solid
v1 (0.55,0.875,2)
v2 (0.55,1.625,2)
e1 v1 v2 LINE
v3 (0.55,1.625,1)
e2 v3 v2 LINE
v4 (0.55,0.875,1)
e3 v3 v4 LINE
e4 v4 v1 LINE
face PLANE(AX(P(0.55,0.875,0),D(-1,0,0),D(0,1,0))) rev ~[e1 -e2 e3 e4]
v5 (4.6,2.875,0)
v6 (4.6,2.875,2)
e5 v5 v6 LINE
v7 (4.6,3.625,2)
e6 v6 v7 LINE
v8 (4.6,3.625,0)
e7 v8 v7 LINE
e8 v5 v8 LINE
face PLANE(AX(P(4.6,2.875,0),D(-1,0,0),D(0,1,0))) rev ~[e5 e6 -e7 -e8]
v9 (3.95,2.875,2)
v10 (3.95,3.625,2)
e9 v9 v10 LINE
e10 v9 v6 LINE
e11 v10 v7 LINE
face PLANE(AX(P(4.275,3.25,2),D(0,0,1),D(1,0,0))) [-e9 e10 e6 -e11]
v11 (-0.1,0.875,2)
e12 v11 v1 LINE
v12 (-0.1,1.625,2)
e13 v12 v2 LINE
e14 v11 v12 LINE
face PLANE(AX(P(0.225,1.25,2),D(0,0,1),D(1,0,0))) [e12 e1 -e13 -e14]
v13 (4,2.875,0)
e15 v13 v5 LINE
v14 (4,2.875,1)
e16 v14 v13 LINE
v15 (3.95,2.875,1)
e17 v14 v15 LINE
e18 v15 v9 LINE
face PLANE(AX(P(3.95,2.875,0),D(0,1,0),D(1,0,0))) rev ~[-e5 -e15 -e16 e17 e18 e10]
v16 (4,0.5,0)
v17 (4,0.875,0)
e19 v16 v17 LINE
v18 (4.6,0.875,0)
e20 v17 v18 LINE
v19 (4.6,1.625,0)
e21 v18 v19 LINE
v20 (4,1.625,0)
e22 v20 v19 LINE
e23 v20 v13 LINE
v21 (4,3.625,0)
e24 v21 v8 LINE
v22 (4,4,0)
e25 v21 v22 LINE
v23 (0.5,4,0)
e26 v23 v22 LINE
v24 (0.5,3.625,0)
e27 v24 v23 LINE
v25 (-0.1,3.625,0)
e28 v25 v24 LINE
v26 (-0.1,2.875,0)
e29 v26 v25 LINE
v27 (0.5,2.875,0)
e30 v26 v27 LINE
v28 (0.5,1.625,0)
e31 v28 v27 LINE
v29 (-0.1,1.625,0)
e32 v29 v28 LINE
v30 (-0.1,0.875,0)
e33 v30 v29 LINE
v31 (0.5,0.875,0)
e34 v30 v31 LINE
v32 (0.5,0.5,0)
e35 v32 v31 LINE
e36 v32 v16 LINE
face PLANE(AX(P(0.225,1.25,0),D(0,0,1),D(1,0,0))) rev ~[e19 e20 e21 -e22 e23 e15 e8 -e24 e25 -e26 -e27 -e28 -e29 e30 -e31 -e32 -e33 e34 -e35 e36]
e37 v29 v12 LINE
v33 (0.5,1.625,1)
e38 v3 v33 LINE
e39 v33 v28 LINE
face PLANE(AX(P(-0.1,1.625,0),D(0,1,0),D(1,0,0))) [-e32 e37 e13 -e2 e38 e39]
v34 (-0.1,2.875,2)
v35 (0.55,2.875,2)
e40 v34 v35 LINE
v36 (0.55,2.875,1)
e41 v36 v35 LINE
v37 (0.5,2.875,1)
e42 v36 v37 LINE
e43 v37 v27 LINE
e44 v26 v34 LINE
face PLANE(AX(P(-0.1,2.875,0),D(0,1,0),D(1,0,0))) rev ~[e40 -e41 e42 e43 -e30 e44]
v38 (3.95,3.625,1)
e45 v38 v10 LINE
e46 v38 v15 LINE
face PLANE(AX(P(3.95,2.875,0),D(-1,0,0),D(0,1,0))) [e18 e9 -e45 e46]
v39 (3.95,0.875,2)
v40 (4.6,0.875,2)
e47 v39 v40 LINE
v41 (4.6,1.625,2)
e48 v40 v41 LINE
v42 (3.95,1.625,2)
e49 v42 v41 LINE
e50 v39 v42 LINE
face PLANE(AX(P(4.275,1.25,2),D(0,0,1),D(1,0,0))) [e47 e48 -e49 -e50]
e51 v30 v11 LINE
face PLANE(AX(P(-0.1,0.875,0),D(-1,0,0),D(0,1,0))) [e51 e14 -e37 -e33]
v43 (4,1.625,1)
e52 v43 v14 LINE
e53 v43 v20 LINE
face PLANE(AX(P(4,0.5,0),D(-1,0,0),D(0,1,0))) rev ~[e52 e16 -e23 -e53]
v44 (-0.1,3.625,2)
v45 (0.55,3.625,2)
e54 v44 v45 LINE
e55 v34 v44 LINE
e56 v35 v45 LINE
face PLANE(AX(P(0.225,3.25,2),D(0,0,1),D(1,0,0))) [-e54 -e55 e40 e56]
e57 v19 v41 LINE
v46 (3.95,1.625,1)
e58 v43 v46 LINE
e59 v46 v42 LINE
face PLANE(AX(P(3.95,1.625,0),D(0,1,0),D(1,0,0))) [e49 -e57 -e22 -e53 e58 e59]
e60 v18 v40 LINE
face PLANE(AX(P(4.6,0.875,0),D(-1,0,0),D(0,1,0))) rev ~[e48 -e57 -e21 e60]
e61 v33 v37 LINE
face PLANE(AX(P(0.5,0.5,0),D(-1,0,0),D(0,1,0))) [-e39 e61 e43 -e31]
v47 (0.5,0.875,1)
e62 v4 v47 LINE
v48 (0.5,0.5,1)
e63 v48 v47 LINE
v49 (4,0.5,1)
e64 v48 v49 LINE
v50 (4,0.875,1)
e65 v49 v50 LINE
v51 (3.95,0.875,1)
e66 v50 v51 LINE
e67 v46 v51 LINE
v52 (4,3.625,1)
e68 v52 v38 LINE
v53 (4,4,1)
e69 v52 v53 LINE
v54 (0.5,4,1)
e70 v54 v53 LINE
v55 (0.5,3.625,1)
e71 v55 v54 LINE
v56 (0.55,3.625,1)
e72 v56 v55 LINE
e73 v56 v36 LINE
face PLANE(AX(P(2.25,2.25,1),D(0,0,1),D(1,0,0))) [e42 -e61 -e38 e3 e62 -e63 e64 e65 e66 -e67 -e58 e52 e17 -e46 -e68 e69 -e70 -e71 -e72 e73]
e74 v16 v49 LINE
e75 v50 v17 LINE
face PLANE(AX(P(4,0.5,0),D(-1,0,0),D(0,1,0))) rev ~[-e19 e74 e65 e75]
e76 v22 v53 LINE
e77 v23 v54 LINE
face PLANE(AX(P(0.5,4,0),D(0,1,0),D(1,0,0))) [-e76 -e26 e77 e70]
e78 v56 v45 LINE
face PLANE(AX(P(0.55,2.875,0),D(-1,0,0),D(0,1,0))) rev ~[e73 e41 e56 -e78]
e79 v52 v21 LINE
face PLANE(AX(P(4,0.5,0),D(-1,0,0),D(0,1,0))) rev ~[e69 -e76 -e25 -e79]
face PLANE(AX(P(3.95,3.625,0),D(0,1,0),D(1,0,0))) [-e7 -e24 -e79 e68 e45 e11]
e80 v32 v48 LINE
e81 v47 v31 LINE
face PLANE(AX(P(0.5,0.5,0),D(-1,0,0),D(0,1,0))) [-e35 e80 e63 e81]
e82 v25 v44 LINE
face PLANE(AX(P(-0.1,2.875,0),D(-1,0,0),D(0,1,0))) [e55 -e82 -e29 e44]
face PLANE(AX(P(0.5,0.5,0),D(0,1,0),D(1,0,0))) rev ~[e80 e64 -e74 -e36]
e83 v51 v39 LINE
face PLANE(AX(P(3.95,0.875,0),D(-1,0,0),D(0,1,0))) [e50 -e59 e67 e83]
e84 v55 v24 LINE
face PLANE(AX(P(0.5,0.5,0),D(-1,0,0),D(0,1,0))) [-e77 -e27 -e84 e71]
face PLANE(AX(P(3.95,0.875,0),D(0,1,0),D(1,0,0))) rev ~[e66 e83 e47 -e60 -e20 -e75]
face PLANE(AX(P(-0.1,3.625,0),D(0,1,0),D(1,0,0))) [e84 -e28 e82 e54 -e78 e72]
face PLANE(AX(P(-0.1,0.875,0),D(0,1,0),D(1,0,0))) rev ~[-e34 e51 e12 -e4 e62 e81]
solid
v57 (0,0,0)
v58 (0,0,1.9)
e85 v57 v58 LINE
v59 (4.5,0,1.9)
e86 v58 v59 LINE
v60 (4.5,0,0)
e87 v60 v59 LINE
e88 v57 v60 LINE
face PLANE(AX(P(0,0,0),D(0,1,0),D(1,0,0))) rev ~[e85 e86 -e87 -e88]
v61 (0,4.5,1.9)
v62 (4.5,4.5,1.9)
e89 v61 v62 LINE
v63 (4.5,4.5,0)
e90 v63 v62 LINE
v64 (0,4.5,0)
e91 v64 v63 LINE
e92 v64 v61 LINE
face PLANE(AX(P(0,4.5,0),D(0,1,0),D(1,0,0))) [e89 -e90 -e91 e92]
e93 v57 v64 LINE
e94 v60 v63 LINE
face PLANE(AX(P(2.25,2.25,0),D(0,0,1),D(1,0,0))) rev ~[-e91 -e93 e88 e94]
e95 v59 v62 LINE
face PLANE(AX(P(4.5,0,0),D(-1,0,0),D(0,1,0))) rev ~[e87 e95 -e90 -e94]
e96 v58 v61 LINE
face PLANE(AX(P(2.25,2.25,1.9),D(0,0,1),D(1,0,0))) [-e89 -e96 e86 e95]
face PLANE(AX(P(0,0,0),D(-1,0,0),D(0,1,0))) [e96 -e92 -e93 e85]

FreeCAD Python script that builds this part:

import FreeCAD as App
import Part
import Sketcher
from FreeCAD import Vector

doc = App.newDocument("Part")
body = doc.addObject("PartDesign::Body", "Body")

sketch1 = body.newObject("Sketcher::SketchObject", "Sketch")
sketch1.AttachmentSupport = (doc.getObject("XY_Plane"), [""])
sketch1.MapMode = "FlatFace"
sketch1.addGeometry([
    Part.LineSegment(Vector(0, 4.5, 0), Vector(0, 0, 0)),
    Part.LineSegment(Vector(0, 0, 0), Vector(4.5, 0, 0)),
    Part.LineSegment(Vector(4.5, 0, 0), Vector(4.5, 4.5, 0)),
    Part.LineSegment(Vector(4.5, 4.5, 0), Vector(0, 4.5, 0)),
], False)
sketch1.addConstraint([
    Sketcher.Constraint("Coincident", 0, 2, 1, 1),
    Sketcher.Constraint("Coincident", 1, 2, 2, 1),
    Sketcher.Constraint("Coincident", 2, 2, 3, 1),
    Sketcher.Constraint("Coincident", 3, 2, 0, 1),
    Sketcher.Constraint("Vertical", 0),
    Sketcher.Constraint("Horizontal", 1),
    Sketcher.Constraint("Vertical", 2),
    Sketcher.Constraint("Horizontal", 3),
    Sketcher.Constraint("Coincident", 0, 2, -1, 1),
    Sketcher.Constraint("Equal", 3, 0),
    Sketcher.Constraint("DistanceX", 1, 1, 1, 2, 4.5),
])
pad1 = body.newObject("PartDesign::Pad", "Pad")
pad1.Profile = sketch1
pad1.Length = 1.9
body2 = doc.addObject("PartDesign::Body", "Body001")

sketch2 = body2.newObject("Sketcher::SketchObject", "Sketch001")
sketch2.AttachmentSupport = (doc.getObject("XY_Plane001"), [""])
sketch2.MapMode = "FlatFace"
sketch2.addGeometry([
    Part.LineSegment(Vector(0.5, 4, 0), Vector(0.5, 0.5, 0)),
    Part.LineSegment(Vector(0.5, 0.5, 0), Vector(4, 0.5, 0)),
    Part.LineSegment(Vector(4, 0.5, 0), Vector(4, 4, 0)),
    Part.LineSegment(Vector(4, 4, 0), Vector(0.5, 4, 0)),
], False)
sketch2.addConstraint([
    Sketcher.Constraint("Coincident", 0, 2, 1, 1),
    Sketcher.Constraint("Coincident", 1, 2, 2, 1),
    Sketcher.Constraint("Coincident", 2, 2, 3, 1),
    Sketcher.Constraint("Coincident", 3, 2, 0, 1),
    Sketcher.Constraint("Vertical", 0),
    Sketcher.Constraint("Horizontal", 1),
    Sketcher.Constraint("Vertical", 2),
    Sketcher.Constraint("Horizontal", 3),
    Sketcher.Constraint("Equal", 3, 0),
    Sketcher.Constraint("DistanceX", 1, 1, 1, 2, 3.5),
    Sketcher.Constraint("DistanceX", -1, 1, 1, 2, 4.0),
    Sketcher.Constraint("DistanceY", -1, 1, 2, 2, 4.0),
])
pad2 = body2.newObject("PartDesign::Pad", "Pad001")
pad2.Profile = sketch2
pad2.Length = 1

sketch3 = body2.newObject("Sketcher::SketchObject", "Sketch002")
sketch3.AttachmentSupport = (doc.getObject("XY_Plane001"), [""])
sketch3.MapMode = "FlatFace"
sketch3.addGeometry([
    Part.LineSegment(Vector(-0.1, 1.6, 0), Vector(-0.1, 0.9, 0)),
    Part.LineSegment(Vector(-0.1, 0.9, 0), Vector(0.6, 0.9, 0)),
    Part.LineSegment(Vector(0.6, 0.9, 0), Vector(0.6, 1.6, 0)),
    Part.LineSegment(Vector(0.6, 1.6, 0), Vector(-0.1, 1.6, 0)),
    Part.LineSegment(Vector(-0.1, 3.6, 0), Vector(-0.1, 2.9, 0)),
    Part.LineSegment(Vector(-0.1, 2.9, 0), Vector(0.6, 2.9, 0)),
    Part.LineSegment(Vector(0.6, 2.9, 0), Vector(0.6, 3.6, 0)),
    Part.LineSegment(Vector(0.6, 3.6, 0), Vector(-0.1, 3.6, 0)),
], False)
sketch3.addConstraint([
    Sketcher.Constraint("Coincident", 0, 2, 1, 1),
    Sketcher.Constraint("Coincident", 1, 2, 2, 1),
    Sketcher.Constraint("Coincident", 2, 2, 3, 1),
    Sketcher.Constraint("Coincident", 3, 2, 0, 1),
    Sketcher.Constraint("Coincident", 4, 2, 5, 1),
    Sketcher.Constraint("Coincident", 5, 2, 6, 1),
    Sketcher.Constraint("Coincident", 6, 2, 7, 1),
    Sketcher.Constraint("Coincident", 7, 2, 4, 1),
    Sketcher.Constraint("Vertical", 0),
    Sketcher.Constraint("Horizontal", 1),
    Sketcher.Constraint("Vertical", 2),
    Sketcher.Constraint("Horizontal", 3),
    Sketcher.Constraint("Vertical", 4),
    Sketcher.Constraint("Horizontal", 5),
    Sketcher.Constraint("Vertical", 6),
    Sketcher.Constraint("Horizontal", 7),
    Sketcher.Constraint("Vertical", 3, 2, 4, 2),
    Sketcher.Constraint("Vertical", 2, 2, 5, 2),
    Sketcher.Constraint("Equal", 2, 4),
    Sketcher.Constraint("DistanceY", 0, 2, 4, 2, 2.0),
    Sketcher.Constraint("DistanceX", 1, 1, 1, 2, 0.65),
    Sketcher.Constraint("DistanceY", 0, 2, 0, 1, 0.75),
    Sketcher.Constraint("DistanceX", 0, 2, -1, 1, 0.1),
    Sketcher.Constraint("DistanceY", -1, 1, 0, 2, 0.875),
])
pad3 = body2.newObject("PartDesign::Pad", "Pad002")
pad3.Profile = sketch3
pad3.Length = 2
doc.recompute()

linearpattern = body2.newObject("PartDesign::LinearPattern", "LinearPattern")
linearpattern.Originals = [pad3]
linearpattern.Direction = (doc.getObject("X_Axis001"), [""])
linearpattern.Mode = "offset"
linearpattern.Offset = 4.05
linearpattern.Occurrences = 2
body2.Tip = linearpattern

doc.recompute()
